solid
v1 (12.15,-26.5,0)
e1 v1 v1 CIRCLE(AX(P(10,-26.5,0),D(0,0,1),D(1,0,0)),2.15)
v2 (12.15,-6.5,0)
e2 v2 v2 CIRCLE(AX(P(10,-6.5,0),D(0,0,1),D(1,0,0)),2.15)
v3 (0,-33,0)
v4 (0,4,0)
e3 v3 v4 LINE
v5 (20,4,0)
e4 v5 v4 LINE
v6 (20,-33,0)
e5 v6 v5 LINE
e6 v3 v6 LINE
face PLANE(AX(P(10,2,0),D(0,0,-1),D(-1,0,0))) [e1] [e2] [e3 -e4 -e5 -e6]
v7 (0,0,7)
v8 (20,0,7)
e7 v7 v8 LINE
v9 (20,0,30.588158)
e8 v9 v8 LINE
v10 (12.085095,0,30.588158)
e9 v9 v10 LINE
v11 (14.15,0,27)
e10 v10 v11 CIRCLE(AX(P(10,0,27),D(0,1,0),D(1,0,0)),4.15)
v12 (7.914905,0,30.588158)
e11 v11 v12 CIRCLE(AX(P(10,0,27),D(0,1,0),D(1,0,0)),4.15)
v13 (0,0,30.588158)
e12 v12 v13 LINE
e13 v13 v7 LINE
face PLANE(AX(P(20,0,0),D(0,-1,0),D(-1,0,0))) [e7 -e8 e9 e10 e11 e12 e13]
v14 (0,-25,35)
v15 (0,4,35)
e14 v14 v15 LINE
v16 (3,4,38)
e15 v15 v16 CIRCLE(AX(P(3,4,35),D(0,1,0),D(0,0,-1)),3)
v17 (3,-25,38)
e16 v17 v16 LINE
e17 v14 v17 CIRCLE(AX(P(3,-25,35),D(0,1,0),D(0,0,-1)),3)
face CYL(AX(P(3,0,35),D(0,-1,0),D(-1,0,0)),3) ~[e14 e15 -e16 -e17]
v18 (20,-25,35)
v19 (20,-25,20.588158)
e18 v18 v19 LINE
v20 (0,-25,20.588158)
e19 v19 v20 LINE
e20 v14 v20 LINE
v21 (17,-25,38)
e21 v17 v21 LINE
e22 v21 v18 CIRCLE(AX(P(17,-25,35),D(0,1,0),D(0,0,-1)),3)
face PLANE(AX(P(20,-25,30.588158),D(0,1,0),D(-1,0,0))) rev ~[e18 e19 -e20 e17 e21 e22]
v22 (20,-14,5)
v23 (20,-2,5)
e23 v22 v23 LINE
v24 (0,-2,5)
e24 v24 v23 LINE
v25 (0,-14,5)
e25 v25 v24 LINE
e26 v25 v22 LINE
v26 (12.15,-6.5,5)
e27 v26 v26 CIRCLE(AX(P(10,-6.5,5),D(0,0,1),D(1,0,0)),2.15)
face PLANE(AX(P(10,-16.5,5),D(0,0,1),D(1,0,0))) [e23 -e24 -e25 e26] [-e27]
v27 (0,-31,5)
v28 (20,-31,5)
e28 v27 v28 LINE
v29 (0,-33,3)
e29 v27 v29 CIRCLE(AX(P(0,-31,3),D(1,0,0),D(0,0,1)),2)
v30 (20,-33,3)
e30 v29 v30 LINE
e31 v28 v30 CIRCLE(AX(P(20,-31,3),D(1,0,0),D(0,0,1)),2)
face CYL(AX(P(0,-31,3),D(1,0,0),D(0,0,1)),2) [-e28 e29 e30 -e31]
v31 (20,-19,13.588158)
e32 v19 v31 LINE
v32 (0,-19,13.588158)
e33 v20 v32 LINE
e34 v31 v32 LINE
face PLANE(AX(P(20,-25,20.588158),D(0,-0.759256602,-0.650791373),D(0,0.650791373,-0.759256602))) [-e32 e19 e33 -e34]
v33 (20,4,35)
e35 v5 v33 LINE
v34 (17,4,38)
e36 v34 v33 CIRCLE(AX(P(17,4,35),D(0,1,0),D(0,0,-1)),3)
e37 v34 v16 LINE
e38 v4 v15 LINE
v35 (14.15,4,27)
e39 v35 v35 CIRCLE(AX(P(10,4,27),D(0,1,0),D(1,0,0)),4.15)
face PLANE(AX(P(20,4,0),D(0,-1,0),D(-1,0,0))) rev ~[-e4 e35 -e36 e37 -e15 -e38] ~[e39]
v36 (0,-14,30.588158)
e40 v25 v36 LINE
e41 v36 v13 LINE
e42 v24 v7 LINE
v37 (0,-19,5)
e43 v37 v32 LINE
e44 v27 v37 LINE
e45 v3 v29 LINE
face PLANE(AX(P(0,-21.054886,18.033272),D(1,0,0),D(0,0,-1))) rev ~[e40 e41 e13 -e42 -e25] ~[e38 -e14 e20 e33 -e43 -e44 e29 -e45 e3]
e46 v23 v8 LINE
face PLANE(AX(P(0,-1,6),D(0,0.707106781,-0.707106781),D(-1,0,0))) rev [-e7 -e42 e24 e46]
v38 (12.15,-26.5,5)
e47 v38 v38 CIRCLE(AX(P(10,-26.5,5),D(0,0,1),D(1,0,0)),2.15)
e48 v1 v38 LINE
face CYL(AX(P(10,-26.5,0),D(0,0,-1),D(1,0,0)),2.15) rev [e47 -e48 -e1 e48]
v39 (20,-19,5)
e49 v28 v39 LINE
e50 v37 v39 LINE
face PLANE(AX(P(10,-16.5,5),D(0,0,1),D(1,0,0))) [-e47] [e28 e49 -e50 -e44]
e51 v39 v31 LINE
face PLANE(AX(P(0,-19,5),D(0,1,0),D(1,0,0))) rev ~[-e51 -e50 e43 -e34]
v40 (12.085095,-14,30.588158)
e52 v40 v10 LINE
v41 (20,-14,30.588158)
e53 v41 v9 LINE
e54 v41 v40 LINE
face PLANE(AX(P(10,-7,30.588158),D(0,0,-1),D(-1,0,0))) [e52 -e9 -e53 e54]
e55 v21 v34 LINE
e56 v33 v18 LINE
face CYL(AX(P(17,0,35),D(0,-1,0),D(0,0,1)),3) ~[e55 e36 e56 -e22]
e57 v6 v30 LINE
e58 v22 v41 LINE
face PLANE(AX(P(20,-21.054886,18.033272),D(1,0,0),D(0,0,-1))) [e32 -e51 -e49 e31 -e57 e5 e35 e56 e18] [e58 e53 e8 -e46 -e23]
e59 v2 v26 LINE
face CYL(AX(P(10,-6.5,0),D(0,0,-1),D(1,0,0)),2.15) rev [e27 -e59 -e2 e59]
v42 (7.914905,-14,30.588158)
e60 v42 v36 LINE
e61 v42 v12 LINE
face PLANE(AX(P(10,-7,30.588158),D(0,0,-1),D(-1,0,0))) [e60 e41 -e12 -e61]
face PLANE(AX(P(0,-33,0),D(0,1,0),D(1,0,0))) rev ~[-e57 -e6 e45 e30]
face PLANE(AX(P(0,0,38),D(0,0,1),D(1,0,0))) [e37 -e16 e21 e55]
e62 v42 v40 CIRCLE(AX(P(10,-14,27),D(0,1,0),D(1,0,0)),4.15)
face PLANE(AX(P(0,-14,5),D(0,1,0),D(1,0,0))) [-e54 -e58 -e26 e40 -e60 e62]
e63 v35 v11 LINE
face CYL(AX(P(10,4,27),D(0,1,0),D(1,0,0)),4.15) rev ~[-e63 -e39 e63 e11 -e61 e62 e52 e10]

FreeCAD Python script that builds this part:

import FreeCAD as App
import Part
import Sketcher
from FreeCAD import Vector


def edges_at(feature, points):
    """Names of the edges that pass closest to the given points."""
    edges = feature.Shape.Edges
    near = lambda p: min(range(len(edges)), key=lambda i: edges[i].distToShape(Part.Vertex(*p))[0])
    return sorted({f"Edge{near(p) + 1}" for p in points})

doc = App.newDocument("Part")
params = doc.addObject("Spreadsheet::Sheet", "Params")
for row, (alias, value) in enumerate([
    ("sketch1_diameter", "4.3 mm"),
    ("sketch1_width", "20 mm"),
    ("sketch1_height", "33 mm"),
    ("pad1_length", "5 mm"),
    ("sketch2_width", "20 mm"),
    ("sketch2_height", "4 mm"),
    ("pad2_length", "38 mm"),
    ("sketch3_width", "20 mm"),
    ("pad3_length", "25 mm"),
    ("fillet_radius", "3 mm"),
    ("fillet2_radius", "2 mm"),
    ("chamfer_size", "2 mm"),
    ("sketch4_width", "20 mm"),
    ("sketch4_height", "5 mm"),
    ("pad4_length", "25.588158 mm"),
    ("sketch5_width", "20 mm"),
    ("sketch5_height", "10 mm"),
    ("pad5_length", "14 mm"),
    ("sketch6_diameter", "8.3 mm"),
    ("pocket1_length", "18 mm"),
    ("sketch7_width", "20 mm"),
    ("sketch7_height", "6 mm"),
    ("pad6_length", "10 mm"),
    ("sketch8_width", "20 mm"),
    ("sketch8_height", "14 mm"),
    ("pocket2_length", "10 mm"),
    ("sketch9_width", "6 mm"),
    ("sketch9_height", "7 mm"),
    ("pad7_length", "20 mm"),
], start=1):
    params.set(f"A{row}", alias)
    params.set(f"B{row}", "=" + value)
    params.setAlias(f"B{row}", alias)

body = doc.addObject("PartDesign::Body", "Body")

# Sketch on XY plane
sketch1 = body.newObject("Sketcher::SketchObject", "Sketch")
sketch1.AttachmentSupport = (doc.getObject("XY_Plane"), [""])
sketch1.MapMode = "FlatFace"
sketch1.addGeometry(Part.LineSegment(Vector(0, 0, 0), Vector(0, -33, 0)), False)
sketch1.addGeometry(Part.LineSegment(Vector(0, -33, 0), Vector(20, -33, 0)), False)
sketch1.addGeometry(Part.LineSegment(Vector(20, -33, 0), Vector(20, 0, 0)), False)
sketch1.addGeometry(Part.LineSegment(Vector(20, 0, 0), Vector(0, 0, 0)), False)
sketch1.addGeometry(Part.Circle(Vector(10, -26.5, 0), Vector(0, 0, 1), 2.15), False)
sketch1.addGeometry(Part.Circle(Vector(10, -6.5, 0), Vector(0, 0, 1), 2.15), False)
sketch1.addConstraint(Sketcher.Constraint("Coincident", 0, 2, 1, 1))
sketch1.addConstraint(Sketcher.Constraint("Coincident", 1, 2, 2, 1))
sketch1.addConstraint(Sketcher.Constraint("Coincident", 2, 2, 3, 1))
sketch1.addConstraint(Sketcher.Constraint("Coincident", 3, 2, 0, 1))
sketch1.addConstraint(Sketcher.Constraint("Vertical", 0))
sketch1.addConstraint(Sketcher.Constraint("Horizontal", 1))
sketch1.addConstraint(Sketcher.Constraint("Vertical", 2))
sketch1.addConstraint(Sketcher.Constraint("Horizontal", 3))
sketch1.addConstraint(Sketcher.Constraint("Coincident", 3, 2, -1, 1))
sketch1.addConstraint(Sketcher.Constraint("Equal", 4, 5))
sketch1.addConstraint(Sketcher.Constraint("Vertical", 4, 3, 5, 3))
sketch1.addConstraint(Sketcher.Constraint("Diameter", 4, 4.3))
sketch1.addConstraint(Sketcher.Constraint("DistanceX", 1, 1, 1, 2, 20.0))
sketch1.addConstraint(Sketcher.Constraint("DistanceY", 0, 2, 0, 1, 33.0))
sketch1.addConstraint(Sketcher.Constraint("DistanceX", -1, 1, 4, 3, 10.0))
sketch1.addConstraint(Sketcher.Constraint("DistanceY", 4, 3, 5, 3, 20.0))
sketch1.addConstraint(Sketcher.Constraint("DistanceY", 4, 3, -1, 1, 26.5))
sketch1.setExpression("Constraints[11]", "Params.sketch1_diameter")
sketch1.setExpression("Constraints[12]", "Params.sketch1_width")
sketch1.setExpression("Constraints[13]", "Params.sketch1_height")
pad1 = body.newObject("PartDesign::Pad", "Pad")
pad1.Profile = sketch1
pad1.setExpression("Length", "Params.pad1_length")

# Sketch on XY plane
sketch2 = body.newObject("Sketcher::SketchObject", "Sketch001")
sketch2.AttachmentSupport = (doc.getObject("XY_Plane"), [""])
sketch2.MapMode = "FlatFace"
sketch2.addGeometry(Part.LineSegment(Vector(20, 4, 0), Vector(20, 0, 0)), False)
sketch2.addGeometry(Part.LineSegment(Vector(20, 0, 0), Vector(0, 0, 0)), False)
sketch2.addGeometry(Part.LineSegment(Vector(0, 0, 0), Vector(0, 4, 0)), False)
sketch2.addGeometry(Part.LineSegment(Vector(0, 4, 0), Vector(20, 4, 0)), False)
sketch2.addConstraint(Sketcher.Constraint("Coincident", 0, 2, 1, 1))
sketch2.addConstraint(Sketcher.Constraint("Coincident", 1, 2, 2, 1))
sketch2.addConstraint(Sketcher.Constraint("Coincident", 2, 2, 3, 1))
sketch2.addConstraint(Sketcher.Constraint("Coincident", 3, 2, 0, 1))
sketch2.addConstraint(Sketcher.Constraint("Vertical", 0))
sketch2.addConstraint(Sketcher.Constraint("Horizontal", 1))
sketch2.addConstraint(Sketcher.Constraint("Vertical", 2))
sketch2.addConstraint(Sketcher.Constraint("Horizontal", 3))
sketch2.addConstraint(Sketcher.Constraint("Coincident", 1, 2, -1, 1))
sketch2.addConstraint(Sketcher.Constraint("DistanceX", 1, 2, 1, 1, 20.0))
sketch2.addConstraint(Sketcher.Constraint("DistanceY", 0, 2, 0, 1, 4.0))
sketch2.setExpression("Constraints[9]", "Params.sketch2_width")
sketch2.setExpression("Constraints[10]", "Params.sketch2_height")
pad2 = body.newObject("PartDesign::Pad", "Pad001")
pad2.Profile = sketch2
pad2.setExpression("Length", "Params.pad2_length")

# Sketch on XZ plane
sketch3 = body.newObject("Sketcher::SketchObject", "Sketch002")
sketch3.AttachmentSupport = (doc.getObject("XZ_Plane"), [""])
sketch3.MapMode = "FlatFace"
sketch3.addGeometry(Part.LineSegment(Vector(0, 38, 0), Vector(0, 30.588158, 0)), False)
sketch3.addGeometry(Part.LineSegment(Vector(0, 30.588158, 0), Vector(20, 30.588158, 0)), False)
sketch3.addGeometry(Part.LineSegment(Vector(20, 30.588158, 0), Vector(20, 38, 0)), False)
sketch3.addGeometry(Part.LineSegment(Vector(20, 38, 0), Vector(0, 38, 0)), False)
sketch3.addConstraint(Sketcher.Constraint("Coincident", 0, 2, 1, 1))
sketch3.addConstraint(Sketcher.Constraint("Coincident", 1, 2, 2, 1))
sketch3.addConstraint(Sketcher.Constraint("Coincident", 2, 2, 3, 1))
sketch3.addConstraint(Sketcher.Constraint("Coincident", 3, 2, 0, 1))
sketch3.addConstraint(Sketcher.Constraint("Vertical", 0))
sketch3.addConstraint(Sketcher.Constraint("Horizontal", 1))
sketch3.addConstraint(Sketcher.Constraint("Vertical", 2))
sketch3.addConstraint(Sketcher.Constraint("Horizontal", 3))
sketch3.addConstraint(Sketcher.Constraint("PointOnObject", 0, 2, -2))
sketch3.addConstraint(Sketcher.Constraint("DistanceX", 1, 1, 1, 2, 20.0))
sketch3.addConstraint(Sketcher.Constraint("DistanceY", -1, 1, 2, 2, 38.0))
sketch3.addConstraint(Sketcher.Constraint("DistanceY", 0, 2, 0, 1, 7.411842))
sketch3.setExpression("Constraints[9]", "Params.sketch3_width")
pad3 = body.newObject("PartDesign::Pad", "Pad002")
pad3.Profile = sketch3
pad3.setExpression("Length", "Params.pad3_length")
doc.recompute()

fillet = body.newObject("PartDesign::Fillet", "Fillet")
fillet.Base = (pad3, edges_at(pad3, [(20, -12.5, 38), (0, -12.5, 38)]))
fillet.setExpression("Radius", "Params.fillet_radius")
doc.recompute()

fillet2 = body.newObject("PartDesign::Fillet", "Fillet001")
fillet2.Base = (fillet, edges_at(fillet, [(10, -33, 5)]))
fillet2.setExpression("Radius", "Params.fillet2_radius")
doc.recompute()

chamfer = body.newObject("PartDesign::Chamfer", "Chamfer")
chamfer.Base = (fillet2, edges_at(fillet2, [(10, 0, 5)]))
chamfer.setExpression("Size", "Params.chamfer_size")

# Sketch on XY plane
sketch4 = body.newObject("Sketcher::SketchObject", "Sketch003")
sketch4.AttachmentSupport = (doc.getObject("XY_Plane"), [""])
sketch4.MapMode = "FlatFace"
sketch4.AttachmentOffset = App.Placement(Vector(0, 0, 5), App.Rotation())
sketch4.addGeometry(Part.LineSegment(Vector(0, -14, 0), Vector(0, -19, 0)), False)
sketch4.addGeometry(Part.LineSegment(Vector(0, -19, 0), Vector(20, -19, 0)), False)
sketch4.addGeometry(Part.LineSegment(Vector(20, -19, 0), Vector(20, -14, 0)), False)
sketch4.addGeometry(Part.LineSegment(Vector(20, -14, 0), Vector(0, -14, 0)), False)
sketch4.addConstraint(Sketcher.Constraint("Coincident", 0, 2, 1, 1))
sketch4.addConstraint(Sketcher.Constraint("Coincident", 1, 2, 2, 1))
sketch4.addConstraint(Sketcher.Constraint("Coincident", 2, 2, 3, 1))
sketch4.addConstraint(Sketcher.Constraint("Coincident", 3, 2, 0, 1))
sketch4.addConstraint(Sketcher.Constraint("Vertical", 0))
sketch4.addConstraint(Sketcher.Constraint("Horizontal", 1))
sketch4.addConstraint(Sketcher.Constraint("Vertical", 2))
sketch4.addConstraint(Sketcher.Constraint("Horizontal", 3))
sketch4.addConstraint(Sketcher.Constraint("PointOnObject", 0, 2, -2))
sketch4.addConstraint(Sketcher.Constraint("DistanceX", 1, 1, 1, 2, 20.0))
sketch4.addConstraint(Sketcher.Constraint("DistanceY", 0, 2, 0, 1, 5.0))
sketch4.addConstraint(Sketcher.Constraint("DistanceY", 0, 2, -1, 1, 19.0))
sketch4.setExpression("Constraints[9]", "Params.sketch4_width")
sketch4.setExpression("Constraints[10]", "Params.sketch4_height")
pad4 = body.newObject("PartDesign::Pad", "Pad003")
pad4.Profile = sketch4
pad4.setExpression("Length", "Params.pad4_length")

# Sketch on XZ plane
sketch5 = body.newObject("Sketcher::SketchObject", "Sketch004")
sketch5.AttachmentSupport = (doc.getObject("XZ_Plane"), [""])
sketch5.MapMode = "FlatFace"
sketch5.AttachmentOffset = App.Placement(Vector(0, 0, 14), App.Rotation())
sketch5.addGeometry(Part.LineSegment(Vector(0, 20.588158, 0), Vector(0, 30.588158, 0)), False)
sketch5.addGeometry(Part.LineSegment(Vector(0, 30.588158, 0), Vector(20, 30.588158, 0)), False)
sketch5.addGeometry(Part.LineSegment(Vector(20, 30.588158, 0), Vector(20, 20.588158, 0)), False)
sketch5.addGeometry(Part.LineSegment(Vector(20, 20.588158, 0), Vector(0, 20.588158, 0)), False)
sketch5.addConstraint(Sketcher.Constraint("Coincident", 0, 2, 1, 1))
sketch5.addConstraint(Sketcher.Constraint("Coincident", 1, 2, 2, 1))
sketch5.addConstraint(Sketcher.Constraint("Coincident", 2, 2, 3, 1))
sketch5.addConstraint(Sketcher.Constraint("Coincident", 3, 2, 0, 1))
sketch5.addConstraint(Sketcher.Constraint("Vertical", 0))
sketch5.addConstraint(Sketcher.Constraint("Horizontal", 1))
sketch5.addConstraint(Sketcher.Constraint("Vertical", 2))
sketch5.addConstraint(Sketcher.Constraint("Horizontal", 3))
sketch5.addConstraint(Sketcher.Constraint("PointOnObject", 0, 2, -2))
sketch5.addConstraint(Sketcher.Constraint("DistanceX", 1, 1, 1, 2, 20.0))
sketch5.addConstraint(Sketcher.Constraint("DistanceY", 0, 1, 0, 2, 10.0))
sketch5.addConstraint(Sketcher.Constraint("DistanceY", -1, 1, 0, 2, 30.588158))
sketch5.setExpression("Constraints[9]", "Params.sketch5_width")
sketch5.setExpression("Constraints[10]", "Params.sketch5_height")
pad5 = body.newObject("PartDesign::Pad", "Pad004")
pad5.Profile = sketch5
pad5.setExpression("Length", "Params.pad5_length")
pad5.Reversed = True

# Sketch on XZ plane
sketch6 = body.newObject("Sketcher::SketchObject", "Sketch005")
sketch6.AttachmentSupport = (doc.getObject("XZ_Plane"), [""])
sketch6.MapMode = "FlatFace"
sketch6.AttachmentOffset = App.Placement(Vector(0, 0, -4), App.Rotation())
sketch6.addGeometry(Part.Circle(Vector(10, 27, 0), Vector(0, 0, 1), 4.15), False)
sketch6.addConstraint(Sketcher.Constraint("Diameter", 0, 8.3))
sketch6.addConstraint(Sketcher.Constraint("DistanceX", -1, 1, 0, 3, 10.0))
sketch6.addConstraint(Sketcher.Constraint("DistanceY", -1, 1, 0, 3, 27.0))
sketch6.setExpression("Constraints[0]", "Params.sketch6_diameter")
pocket1 = body.newObject("PartDesign::Pocket", "Pocket")
pocket1.Profile = sketch6
pocket1.setExpression("Length", "Params.pocket1_length")
pocket1.Reversed = True

# Sketch on XY plane
sketch7 = body.newObject("Sketcher::SketchObject", "Sketch006")
sketch7.AttachmentSupport = (doc.getObject("XY_Plane"), [""])
sketch7.MapMode = "FlatFace"
sketch7.AttachmentOffset = App.Placement(Vector(0, 0, 30.588158), App.Rotation())
sketch7.addGeometry(Part.LineSegment(Vector(20, -19, 0), Vector(20, -25, 0)), False)
sketch7.addGeometry(Part.LineSegment(Vector(20, -25, 0), Vector(0, -25, 0)), False)
sketch7.addGeometry(Part.LineSegment(Vector(0, -25, 0), Vector(0, -19, 0)), False)
sketch7.addGeometry(Part.LineSegment(Vector(0, -19, 0), Vector(20, -19, 0)), False)
sketch7.addConstraint(Sketcher.Constraint("Coincident", 0, 2, 1, 1))
sketch7.addConstraint(Sketcher.Constraint("Coincident", 1, 2, 2, 1))
sketch7.addConstraint(Sketcher.Constraint("Coincident", 2, 2, 3, 1))
sketch7.addConstraint(Sketcher.Constraint("Coincident", 3, 2, 0, 1))
sketch7.addConstraint(Sketcher.Constraint("Vertical", 0))
sketch7.addConstraint(Sketcher.Constraint("Horizontal", 1))
sketch7.addConstraint(Sketcher.Constraint("Vertical", 2))
sketch7.addConstraint(Sketcher.Constraint("Horizontal", 3))
sketch7.addConstraint(Sketcher.Constraint("PointOnObject", 1, 2, -2))
sketch7.addConstraint(Sketcher.Constraint("DistanceX", 1, 2, 1, 1, 20.0))
sketch7.addConstraint(Sketcher.Constraint("DistanceY", 0, 2, 0, 1, 6.0))
sketch7.addConstraint(Sketcher.Constraint("DistanceY", 0, 2, -1, 1, 25.0))
sketch7.setExpression("Constraints[9]", "Params.sketch7_width")
sketch7.setExpression("Constraints[10]", "Params.sketch7_height")
pad6 = body.newObject("PartDesign::Pad", "Pad005")
pad6.Profile = sketch7
pad6.setExpression("Length", "Params.pad6_length")
pad6.Reversed = True

# Sketch on XY plane
sketch8 = body.newObject("Sketcher::SketchObject", "Sketch007")
sketch8.AttachmentSupport = (doc.getObject("XY_Plane"), [""])
sketch8.MapMode = "FlatFace"
sketch8.AttachmentOffset = App.Placement(Vector(0, 0, 20.588158), App.Rotation())
sketch8.addGeometry(Part.LineSegment(Vector(20, 0, 0), Vector(20, -14, 0)), False)
sketch8.addGeometry(Part.LineSegment(Vector(20, -14, 0), Vector(0, -14, 0)), False)
sketch8.addGeometry(Part.LineSegment(Vector(0, -14, 0), Vector(0, 0, 0)), False)
sketch8.addGeometry(Part.LineSegment(Vector(0, 0, 0), Vector(20, 0, 0)), False)
sketch8.addConstraint(Sketcher.Constraint("Coincident", 0, 2, 1, 1))
sketch8.addConstraint(Sketcher.Constraint("Coincident", 1, 2, 2, 1))
sketch8.addConstraint(Sketcher.Constraint("Coincident", 2, 2, 3, 1))
sketch8.addConstraint(Sketcher.Constraint("Coincident", 3, 2, 0, 1))
sketch8.addConstraint(Sketcher.Constraint("Vertical", 0))
sketch8.addConstraint(Sketcher.Constraint("Horizontal", 1))
sketch8.addConstraint(Sketcher.Constraint("Vertical", 2))
sketch8.addConstraint(Sketcher.Constraint("Horizontal", 3))
sketch8.addConstraint(Sketcher.Constraint("Coincident", 2, 2, -1, 1))
sketch8.addConstraint(Sketcher.Constraint("DistanceX", 1, 2, 1, 1, 20.0))
sketch8.addConstraint(Sketcher.Constraint("DistanceY", 0, 2, 0, 1, 14.0))
sketch8.setExpression("Constraints[9]", "Params.sketch8_width")
sketch8.setExpression("Constraints[10]", "Params.sketch8_height")
pocket2 = body.newObject("PartDesign::Pocket", "Pocket001")
pocket2.Profile = sketch8
pocket2.setExpression("Length", "Params.pocket2_length")
pocket2.Reversed = True

# Sketch on YZ plane
sketch9 = body.newObject("Sketcher::SketchObject", "Sketch008")
sketch9.AttachmentSupport = (doc.getObject("YZ_Plane"), [""])
sketch9.MapMode = "FlatFace"
sketch9.AttachmentOffset = App.Placement(Vector(0, 0, 20), App.Rotation())
sketch9.addGeometry(Part.LineSegment(Vector(-19, 20.588158, 0), Vector(-25, 20.588158, 0)), False)
sketch9.addGeometry(Part.LineSegment(Vector(-25, 20.588158, 0), Vector(-19, 13.588158, 0)), False)
sketch9.addGeometry(Part.LineSegment(Vector(-19, 13.588158, 0), Vector(-19, 20.588158, 0)), False)
sketch9.addConstraint(Sketcher.Constraint("Coincident", 0, 2, 1, 1))
sketch9.addConstraint(Sketcher.Constraint("Coincident", 1, 2, 2, 1))
sketch9.addConstraint(Sketcher.Constraint("Coincident", 2, 2, 0, 1))
sketch9.addConstraint(Sketcher.Constraint("Horizontal", 0))
sketch9.addConstraint(Sketcher.Constraint("Vertical", 2))
sketch9.addConstraint(Sketcher.Constraint("DistanceX", 0, 2, 0, 1, 6.0))
sketch9.addConstraint(Sketcher.Constraint("DistanceY", 2, 1, 2, 2, 7.0))
sketch9.addConstraint(Sketcher.Constraint("DistanceX", 0, 2, -1, 1, 25.0))
sketch9.addConstraint(Sketcher.Constraint("DistanceY", -1, 1, 0, 2, 20.588158))
sketch9.setExpression("Constraints[5]", "Params.sketch9_width")
sketch9.setExpression("Constraints[6]", "Params.sketch9_height")
pad7 = body.newObject("PartDesign::Pad", "Pad006")
pad7.Profile = sketch9
pad7.setExpression("Length", "Params.pad7_length")
pad7.Reversed = True

doc.recompute()
